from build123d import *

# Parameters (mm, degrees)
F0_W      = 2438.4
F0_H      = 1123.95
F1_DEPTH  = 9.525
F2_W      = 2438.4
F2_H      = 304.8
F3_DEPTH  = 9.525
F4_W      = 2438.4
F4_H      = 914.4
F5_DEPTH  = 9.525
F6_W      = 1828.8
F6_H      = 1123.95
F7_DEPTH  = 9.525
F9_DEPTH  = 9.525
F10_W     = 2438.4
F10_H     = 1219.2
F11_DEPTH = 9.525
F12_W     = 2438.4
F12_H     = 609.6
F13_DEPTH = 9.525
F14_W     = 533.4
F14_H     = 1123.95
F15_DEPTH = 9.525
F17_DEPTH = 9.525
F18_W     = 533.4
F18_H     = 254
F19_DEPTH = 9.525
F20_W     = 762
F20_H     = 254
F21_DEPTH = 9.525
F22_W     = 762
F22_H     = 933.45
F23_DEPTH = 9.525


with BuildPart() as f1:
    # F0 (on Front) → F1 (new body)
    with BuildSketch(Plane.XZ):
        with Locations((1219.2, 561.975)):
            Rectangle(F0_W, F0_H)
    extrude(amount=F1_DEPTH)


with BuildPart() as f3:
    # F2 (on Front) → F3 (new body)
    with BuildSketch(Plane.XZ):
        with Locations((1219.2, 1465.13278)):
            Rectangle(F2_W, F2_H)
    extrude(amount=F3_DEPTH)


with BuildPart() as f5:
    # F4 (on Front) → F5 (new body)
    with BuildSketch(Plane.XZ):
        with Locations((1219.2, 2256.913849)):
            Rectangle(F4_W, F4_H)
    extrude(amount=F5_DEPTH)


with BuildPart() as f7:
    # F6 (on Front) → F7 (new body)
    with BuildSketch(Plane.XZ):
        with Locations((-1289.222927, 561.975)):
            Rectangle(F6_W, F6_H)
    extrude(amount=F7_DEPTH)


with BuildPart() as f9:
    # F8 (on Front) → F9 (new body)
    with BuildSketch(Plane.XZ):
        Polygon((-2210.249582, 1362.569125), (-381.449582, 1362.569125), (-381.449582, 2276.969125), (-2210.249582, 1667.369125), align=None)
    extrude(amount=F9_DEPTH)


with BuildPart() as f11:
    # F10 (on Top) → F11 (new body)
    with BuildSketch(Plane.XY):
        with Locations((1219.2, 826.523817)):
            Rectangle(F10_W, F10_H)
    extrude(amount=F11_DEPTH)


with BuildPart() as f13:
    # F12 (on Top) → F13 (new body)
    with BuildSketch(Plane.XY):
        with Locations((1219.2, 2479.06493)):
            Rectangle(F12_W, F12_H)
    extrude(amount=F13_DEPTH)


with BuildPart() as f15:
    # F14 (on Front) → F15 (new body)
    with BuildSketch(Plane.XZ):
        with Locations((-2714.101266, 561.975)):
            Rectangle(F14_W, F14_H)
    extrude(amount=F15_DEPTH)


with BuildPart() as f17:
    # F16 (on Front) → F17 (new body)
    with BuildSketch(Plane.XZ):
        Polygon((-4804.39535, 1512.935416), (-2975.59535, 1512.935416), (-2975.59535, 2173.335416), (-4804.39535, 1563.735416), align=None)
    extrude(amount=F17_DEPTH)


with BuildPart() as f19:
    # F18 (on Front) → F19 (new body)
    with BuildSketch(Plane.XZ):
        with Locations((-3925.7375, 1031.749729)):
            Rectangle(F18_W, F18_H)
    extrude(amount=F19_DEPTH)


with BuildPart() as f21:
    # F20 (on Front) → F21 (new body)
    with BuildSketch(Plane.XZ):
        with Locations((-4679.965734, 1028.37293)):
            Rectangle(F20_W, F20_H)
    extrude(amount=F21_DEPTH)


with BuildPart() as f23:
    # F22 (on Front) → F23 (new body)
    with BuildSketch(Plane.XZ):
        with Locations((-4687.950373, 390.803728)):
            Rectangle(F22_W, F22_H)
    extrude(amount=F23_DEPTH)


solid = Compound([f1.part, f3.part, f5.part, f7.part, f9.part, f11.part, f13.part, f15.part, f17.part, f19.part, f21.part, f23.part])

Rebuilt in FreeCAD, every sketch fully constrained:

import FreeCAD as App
import Part
import Sketcher
Q = App.Units.Quantity

doc = App.newDocument("Part")
body = doc.addObject("PartDesign::Body", "Body")

sketch1 = doc.addObject("Sketcher::SketchObject", "Sketch")
body.addObject(sketch1)
sketch1.AttachmentSupport = (doc.XZ_Plane, [""])
sketch1.MapMode = "FlatFace"
sketch1.addGeometry(Part.LineSegment(App.Vector(0, 1124, 0), App.Vector(0, 0, 0)), False)
sketch1.addGeometry(Part.LineSegment(App.Vector(0, 0, 0), App.Vector(2438, 0, 0)), False)
sketch1.addGeometry(Part.LineSegment(App.Vector(2438, 0, 0), App.Vector(2438, 1124, 0)), False)
sketch1.addGeometry(Part.LineSegment(App.Vector(2438, 1124, 0), App.Vector(0, 1124, 0)), False)
sketch1.addConstraint(Sketcher.Constraint("Coincident", 0, 2, 1, 1))
sketch1.addConstraint(Sketcher.Constraint("Coincident", 1, 2, 2, 1))
sketch1.addConstraint(Sketcher.Constraint("Coincident", 2, 2, 3, 1))
sketch1.addConstraint(Sketcher.Constraint("Coincident", 3, 2, 0, 1))
sketch1.addConstraint(Sketcher.Constraint("Vertical", 0))
sketch1.addConstraint(Sketcher.Constraint("Horizontal", 1))
sketch1.addConstraint(Sketcher.Constraint("Vertical", 2))
sketch1.addConstraint(Sketcher.Constraint("Horizontal", 3))
sketch1.addConstraint(Sketcher.Constraint("Coincident", 0, 2, -1, 1))
sketch1.addConstraint(Sketcher.Constraint("DistanceX", 1, 1, 1, 2, Q("96 in")))
sketch1.addConstraint(Sketcher.Constraint("DistanceY", 0, 2, 0, 1, Q("44.25 in")))
pad1 = doc.addObject("PartDesign::Pad", "Pad")
body.addObject(pad1)
pad1.Profile = sketch1
pad1.Length = Q("0.375 in")
body2 = doc.addObject("PartDesign::Body", "Body001")

sketch2 = doc.addObject("Sketcher::SketchObject", "Sketch001")
body2.addObject(sketch2)
sketch2.AttachmentSupport = (doc.getObject("XZ_Plane001"), [""])
sketch2.MapMode = "FlatFace"
sketch2.addGeometry(Part.LineSegment(App.Vector(0, 1618, 0), App.Vector(0, 1313, 0)), False)
sketch2.addGeometry(Part.LineSegment(App.Vector(0, 1313, 0), App.Vector(2438, 1313, 0)), False)
sketch2.addGeometry(Part.LineSegment(App.Vector(2438, 1313, 0), App.Vector(2438, 1618, 0)), False)
sketch2.addGeometry(Part.LineSegment(App.Vector(2438, 1618, 0), App.Vector(0, 1618, 0)), False)
sketch2.addConstraint(Sketcher.Constraint("Coincident", 0, 2, 1, 1))
sketch2.addConstraint(Sketcher.Constraint("Coincident", 1, 2, 2, 1))
sketch2.addConstraint(Sketcher.Constraint("Coincident", 2, 2, 3, 1))
sketch2.addConstraint(Sketcher.Constraint("Coincident", 3, 2, 0, 1))
sketch2.addConstraint(Sketcher.Constraint("Vertical", 0))
sketch2.addConstraint(Sketcher.Constraint("Horizontal", 1))
sketch2.addConstraint(Sketcher.Constraint("Vertical", 2))
sketch2.addConstraint(Sketcher.Constraint("Horizontal", 3))
sketch2.addConstraint(Sketcher.Constraint("PointOnObject", 0, 2, -2))
sketch2.addConstraint(Sketcher.Constraint("DistanceX", 1, 1, 1, 2, Q("96 in")))
sketch2.addConstraint(Sketcher.Constraint("DistanceY", 0, 2, 0, 1, Q("12 in")))
sketch2.addConstraint(Sketcher.Constraint("DistanceY", -1, 1, 0, 2, Q("1312.73278 mm")))
pad2 = doc.addObject("PartDesign::Pad", "Pad001")
body2.addObject(pad2)
pad2.Profile = sketch2
pad2.Length = Q("0.375 in")
body3 = doc.addObject("PartDesign::Body", "Body002")

sketch3 = doc.addObject("Sketcher::SketchObject", "Sketch002")
body3.addObject(sketch3)
sketch3.AttachmentSupport = (doc.getObject("XZ_Plane002"), [""])
sketch3.MapMode = "FlatFace"
sketch3.addGeometry(Part.LineSegment(App.Vector(0, 2714, 0), App.Vector(0, 1800, 0)), False)
sketch3.addGeometry(Part.LineSegment(App.Vector(0, 1800, 0), App.Vector(2438, 1800, 0)), False)
sketch3.addGeometry(Part.LineSegment(App.Vector(2438, 1800, 0), App.Vector(2438, 2714, 0)), False)
sketch3.addGeometry(Part.LineSegment(App.Vector(2438, 2714, 0), App.Vector(0, 2714, 0)), False)
sketch3.addConstraint(Sketcher.Constraint("Coincident", 0, 2, 1, 1))
sketch3.addConstraint(Sketcher.Constraint("Coincident", 1, 2, 2, 1))
sketch3.addConstraint(Sketcher.Constraint("Coincident", 2, 2, 3, 1))
sketch3.addConstraint(Sketcher.Constraint("Coincident", 3, 2, 0, 1))
sketch3.addConstraint(Sketcher.Constraint("Vertical", 0))
sketch3.addConstraint(Sketcher.Constraint("Horizontal", 1))
sketch3.addConstraint(Sketcher.Constraint("Vertical", 2))
sketch3.addConstraint(Sketcher.Constraint("Horizontal", 3))
sketch3.addConstraint(Sketcher.Constraint("PointOnObject", 0, 2, -2))
sketch3.addConstraint(Sketcher.Constraint("DistanceX", 1, 1, 1, 2, Q("96 in")))
sketch3.addConstraint(Sketcher.Constraint("DistanceY", 0, 2, 0, 1, Q("36 in")))
sketch3.addConstraint(Sketcher.Constraint("DistanceY", -1, 1, 0, 2, Q("1799.713849 mm")))
pad3 = doc.addObject("PartDesign::Pad", "Pad002")
body3.addObject(pad3)
pad3.Profile = sketch3
pad3.Length = Q("0.375 in")
body4 = doc.addObject("PartDesign::Body", "Body003")

sketch4 = doc.addObject("Sketcher::SketchObject", "Sketch003")
body4.addObject(sketch4)
sketch4.AttachmentSupport = (doc.getObject("XZ_Plane003"), [""])
sketch4.MapMode = "FlatFace"
sketch4.addGeometry(Part.LineSegment(App.Vector(-2204, 1124, 0), App.Vector(-2204, 0, 0)), False)
sketch4.addGeometry(Part.LineSegment(App.Vector(-2204, 0, 0), App.Vector(-375, 0, 0)), False)
sketch4.addGeometry(Part.LineSegment(App.Vector(-375, 0, 0), App.Vector(-375, 1124, 0)), False)
sketch4.addGeometry(Part.LineSegment(App.Vector(-375, 1124, 0), App.Vector(-2204, 1124, 0)), False)
sketch4.addConstraint(Sketcher.Constraint("Coincident", 0, 2, 1, 1))
sketch4.addConstraint(Sketcher.Constraint("Coincident", 1, 2, 2, 1))
sketch4.addConstraint(Sketcher.Constraint("Coincident", 2, 2, 3, 1))
sketch4.addConstraint(Sketcher.Constraint("Coincident", 3, 2, 0, 1))
sketch4.addConstraint(Sketcher.Constraint("Vertical", 0))
sketch4.addConstraint(Sketcher.Constraint("Horizontal", 1))
sketch4.addConstraint(Sketcher.Constraint("Vertical", 2))
sketch4.addConstraint(Sketcher.Constraint("Horizontal", 3))
sketch4.addConstraint(Sketcher.Constraint("PointOnObject", 0, 2, -1))
sketch4.addConstraint(Sketcher.Constraint("DistanceX", 1, 1, 1, 2, Q("72 in")))
sketch4.addConstraint(Sketcher.Constraint("DistanceY", 0, 2, 0, 1, Q("44.25 in")))
sketch4.addConstraint(Sketcher.Constraint("DistanceX", 0, 2, -1, 1, Q("2203.622927 mm")))
pad4 = doc.addObject("PartDesign::Pad", "Pad003")
body4.addObject(pad4)
pad4.Profile = sketch4
pad4.Length = Q("0.375 in")
body5 = doc.addObject("PartDesign::Body", "Body004")

sketch5 = doc.addObject("Sketcher::SketchObject", "Sketch004")
body5.addObject(sketch5)
sketch5.AttachmentSupport = (doc.getObject("XZ_Plane004"), [""])
sketch5.MapMode = "FlatFace"
sketch5.addGeometry(Part.LineSegment(App.Vector(-2210, 1363, 0), App.Vector(-381, 1363, 0)), False)
sketch5.addGeometry(Part.LineSegment(App.Vector(-381, 1363, 0), App.Vector(-381, 2277, 0)), False)
sketch5.addGeometry(Part.LineSegment(App.Vector(-381, 2277, 0), App.Vector(-2210, 1667, 0)), False)
sketch5.addGeometry(Part.LineSegment(App.Vector(-2210, 1667, 0), App.Vector(-2210, 1363, 0)), False)
sketch5.addConstraint(Sketcher.Constraint("Coincident", 0, 2, 1, 1))
sketch5.addConstraint(Sketcher.Constraint("Coincident", 1, 2, 2, 1))
sketch5.addConstraint(Sketcher.Constraint("Coincident", 2, 2, 3, 1))
sketch5.addConstraint(Sketcher.Constraint("Coincident", 3, 2, 0, 1))
sketch5.addConstraint(Sketcher.Constraint("Horizontal", 0))
sketch5.addConstraint(Sketcher.Constraint("Vertical", 1))
sketch5.addConstraint(Sketcher.Constraint("Vertical", 3))
sketch5.addConstraint(Sketcher.Constraint("DistanceX", 0, 1, 0, 2, Q("72 in")))
sketch5.addConstraint(Sketcher.Constraint("DistanceY", 1, 1, 1, 2, Q("36 in")))
sketch5.addConstraint(Sketcher.Constraint("DistanceY", 3, 2, 3, 1, Q("12 in")))
sketch5.addConstraint(Sketcher.Constraint("DistanceX", 0, 2, -1, 1, Q("15.0177001 in")))
sketch5.addConstraint(Sketcher.Constraint("DistanceY", -1, 1, 0, 2, Q("1362.569125 mm")))
pad5 = doc.addObject("PartDesign::Pad", "Pad004")
body5.addObject(pad5)
pad5.Profile = sketch5
pad5.Length = Q("0.375 in")
body6 = doc.addObject("PartDesign::Body", "Body005")

sketch6 = doc.addObject("Sketcher::SketchObject", "Sketch005")
body6.addObject(sketch6)
sketch6.AttachmentSupport = (doc.getObject("XY_Plane005"), [""])
sketch6.MapMode = "FlatFace"
sketch6.addGeometry(Part.LineSegment(App.Vector(0, 1436, 0), App.Vector(0, 217, 0)), False)
sketch6.addGeometry(Part.LineSegment(App.Vector(0, 217, 0), App.Vector(2438, 217, 0)), False)
sketch6.addGeometry(Part.LineSegment(App.Vector(2438, 217, 0), App.Vector(2438, 1436, 0)), False)
sketch6.addGeometry(Part.LineSegment(App.Vector(2438, 1436, 0), App.Vector(0, 1436, 0)), False)
sketch6.addConstraint(Sketcher.Constraint("Coincident", 0, 2, 1, 1))
sketch6.addConstraint(Sketcher.Constraint("Coincident", 1, 2, 2, 1))
sketch6.addConstraint(Sketcher.Constraint("Coincident", 2, 2, 3, 1))
sketch6.addConstraint(Sketcher.Constraint("Coincident", 3, 2, 0, 1))
sketch6.addConstraint(Sketcher.Constraint("Vertical", 0))
sketch6.addConstraint(Sketcher.Constraint("Horizontal", 1))
sketch6.addConstraint(Sketcher.Constraint("Vertical", 2))
sketch6.addConstraint(Sketcher.Constraint("Horizontal", 3))
sketch6.addConstraint(Sketcher.Constraint("PointOnObject", 0, 2, -2))
sketch6.addConstraint(Sketcher.Constraint("DistanceX", 1, 1, 1, 2, Q("96 in")))
sketch6.addConstraint(Sketcher.Constraint("DistanceY", 0, 2, 0, 1, Q("48 in")))
sketch6.addConstraint(Sketcher.Constraint("DistanceY", -1, 1, 0, 2, Q("216.923817 mm")))
pad6 = doc.addObject("PartDesign::Pad", "Pad005")
body6.addObject(pad6)
pad6.Profile = sketch6
pad6.Length = Q("0.375 in")
body7 = doc.addObject("PartDesign::Body", "Body006")

sketch7 = doc.addObject("Sketcher::SketchObject", "Sketch006")
body7.addObject(sketch7)
sketch7.AttachmentSupport = (doc.getObject("XY_Plane006"), [""])
sketch7.MapMode = "FlatFace"
sketch7.addGeometry(Part.LineSegment(App.Vector(0, 2784, 0), App.Vector(0, 2174, 0)), False)
sketch7.addGeometry(Part.LineSegment(App.Vector(0, 2174, 0), App.Vector(2438, 2174, 0)), False)
sketch7.addGeometry(Part.LineSegment(App.Vector(2438, 2174, 0), App.Vector(2438, 2784, 0)), False)
sketch7.addGeometry(Part.LineSegment(App.Vector(2438, 2784, 0), App.Vector(0, 2784, 0)), False)
sketch7.addConstraint(Sketcher.Constraint("Coincident", 0, 2, 1, 1))
sketch7.addConstraint(Sketcher.Constraint("Coincident", 1, 2, 2, 1))
sketch7.addConstraint(Sketcher.Constraint("Coincident", 2, 2, 3, 1))
sketch7.addConstraint(Sketcher.Constraint("Coincident", 3, 2, 0, 1))
sketch7.addConstraint(Sketcher.Constraint("Vertical", 0))
sketch7.addConstraint(Sketcher.Constraint("Horizontal", 1))
sketch7.addConstraint(Sketcher.Constraint("Vertical", 2))
sketch7.addConstraint(Sketcher.Constraint("Horizontal", 3))
sketch7.addConstraint(Sketcher.Constraint("PointOnObject", 0, 2, -2))
sketch7.addConstraint(Sketcher.Constraint("DistanceX", 1, 1, 1, 2, Q("96 in")))
sketch7.addConstraint(Sketcher.Constraint("DistanceY", 0, 2, 0, 1, Q("24 in")))
sketch7.addConstraint(Sketcher.Constraint("DistanceY", -1, 1, 0, 2, Q("2174.26493 mm")))
pad7 = doc.addObject("PartDesign::Pad", "Pad006")
body7.addObject(pad7)
pad7.Profile = sketch7
pad7.Length = Q("0.375 in")
body8 = doc.addObject("PartDesign::Body", "Body007")

sketch8 = doc.addObject("Sketcher::SketchObject", "Sketch007")
body8.addObject(sketch8)
sketch8.AttachmentSupport = (doc.getObject("XZ_Plane007"), [""])
sketch8.MapMode = "FlatFace"
sketch8.addGeometry(Part.LineSegment(App.Vector(-2981, 1124, 0), App.Vector(-2981, 0, 0)), False)
sketch8.addGeometry(Part.LineSegment(App.Vector(-2981, 0, 0), App.Vector(-2447, 0, 0)), False)
sketch8.addGeometry(Part.LineSegment(App.Vector(-2447, 0, 0), App.Vector(-2447, 1124, 0)), False)
sketch8.addGeometry(Part.LineSegment(App.Vector(-2447, 1124, 0), App.Vector(-2981, 1124, 0)), False)
sketch8.addConstraint(Sketcher.Constraint("Coincident", 0, 2, 1, 1))
sketch8.addConstraint(Sketcher.Constraint("Coincident", 1, 2, 2, 1))
sketch8.addConstraint(Sketcher.Constraint("Coincident", 2, 2, 3, 1))
sketch8.addConstraint(Sketcher.Constraint("Coincident", 3, 2, 0, 1))
sketch8.addConstraint(Sketcher.Constraint("Vertical", 0))
sketch8.addConstraint(Sketcher.Constraint("Horizontal", 1))
sketch8.addConstraint(Sketcher.Constraint("Vertical", 2))
sketch8.addConstraint(Sketcher.Constraint("Horizontal", 3))
sketch8.addConstraint(Sketcher.Constraint("PointOnObject", 0, 2, -1))
sketch8.addConstraint(Sketcher.Constraint("DistanceX", 1, 1, 1, 2, Q("21 in")))
sketch8.addConstraint(Sketcher.Constraint("DistanceY", 0, 2, 0, 1, Q("44.25 in")))
sketch8.addConstraint(Sketcher.Constraint("DistanceX", 0, 2, -1, 1, Q("2980.801266 mm")))
pad8 = doc.addObject("PartDesign::Pad", "Pad007")
body8.addObject(pad8)
pad8.Profile = sketch8
pad8.Length = Q("0.375 in")
body9 = doc.addObject("PartDesign::Body", "Body008")

sketch9 = doc.addObject("Sketcher::SketchObject", "Sketch008")
body9.addObject(sketch9)
sketch9.AttachmentSupport = (doc.getObject("XZ_Plane008"), [""])
sketch9.MapMode = "FlatFace"
sketch9.addGeometry(Part.LineSegment(App.Vector(-4804, 1513, 0), App.Vector(-2976, 1513, 0)), False)
sketch9.addGeometry(Part.LineSegment(App.Vector(-2976, 1513, 0), App.Vector(-2976, 2173, 0)), False)
sketch9.addGeometry(Part.LineSegment(App.Vector(-2976, 2173, 0), App.Vector(-4804, 1564, 0)), False)
sketch9.addGeometry(Part.LineSegment(App.Vector(-4804, 1564, 0), App.Vector(-4804, 1513, 0)), False)
sketch9.addConstraint(Sketcher.Constraint("Coincident", 0, 2, 1, 1))
sketch9.addConstraint(Sketcher.Constraint("Coincident", 1, 2, 2, 1))
sketch9.addConstraint(Sketcher.Constraint("Coincident", 2, 2, 3, 1))
sketch9.addConstraint(Sketcher.Constraint("Coincident", 3, 2, 0, 1))
sketch9.addConstraint(Sketcher.Constraint("Horizontal", 0))
sketch9.addConstraint(Sketcher.Constraint("Vertical", 1))
sketch9.addConstraint(Sketcher.Constraint("Vertical", 3))
sketch9.addConstraint(Sketcher.Constraint("DistanceX", 0, 1, 0, 2, Q("72 in")))
sketch9.addConstraint(Sketcher.Constraint("DistanceY", 1, 1, 1, 2, Q("26 in")))
sketch9.addConstraint(Sketcher.Constraint("DistanceY", 3, 2, 3, 1, Q("2 in")))
sketch9.addConstraint(Sketcher.Constraint("DistanceX", 0, 2, -1, 1, Q("2975.59535 mm")))
sketch9.addConstraint(Sketcher.Constraint("DistanceY", -1, 1, 0, 2, Q("1512.935416 mm")))
pad9 = doc.addObject("PartDesign::Pad", "Pad008")
body9.addObject(pad9)
pad9.Profile = sketch9
pad9.Length = Q("0.375 in")
body10 = doc.addObject("PartDesign::Body", "Body009")

sketch10 = doc.addObject("Sketcher::SketchObject", "Sketch009")
body10.addObject(sketch10)
sketch10.AttachmentSupport = (doc.getObject("XZ_Plane009"), [""])
sketch10.MapMode = "FlatFace"
sketch10.addGeometry(Part.LineSegment(App.Vector(-4192, 1159, 0), App.Vector(-4192, 905, 0)), False)
sketch10.addGeometry(Part.LineSegment(App.Vector(-4192, 905, 0), App.Vector(-3659, 905, 0)), False)
sketch10.addGeometry(Part.LineSegment(App.Vector(-3659, 905, 0), App.Vector(-3659, 1159, 0)), False)
sketch10.addGeometry(Part.LineSegment(App.Vector(-3659, 1159, 0), App.Vector(-4192, 1159, 0)), False)
sketch10.addConstraint(Sketcher.Constraint("Coincident", 0, 2, 1, 1))
sketch10.addConstraint(Sketcher.Constraint("Coincident", 1, 2, 2, 1))
sketch10.addConstraint(Sketcher.Constraint("Coincident", 2, 2, 3, 1))
sketch10.addConstraint(Sketcher.Constraint("Coincident", 3, 2, 0, 1))
sketch10.addConstraint(Sketcher.Constraint("Vertical", 0))
sketch10.addConstraint(Sketcher.Constraint("Horizontal", 1))
sketch10.addConstraint(Sketcher.Constraint("Vertical", 2))
sketch10.addConstraint(Sketcher.Constraint("Horizontal", 3))
sketch10.addConstraint(Sketcher.Constraint("DistanceX", 1, 1, 1, 2, Q("21 in")))
sketch10.addConstraint(Sketcher.Constraint("DistanceY", 0, 2, 0, 1, Q("10 in")))
sketch10.addConstraint(Sketcher.Constraint("DistanceX", 0, 2, -1, 1, Q("4192.4375 mm")))
sketch10.addConstraint(Sketcher.Constraint("DistanceY", -1, 1, 0, 2, Q("904.749729 mm")))
pad10 = doc.addObject("PartDesign::Pad", "Pad009")
body10.addObject(pad10)
pad10.Profile = sketch10
pad10.Length = Q("0.375 in")
body11 = doc.addObject("PartDesign::Body", "Body010")

sketch11 = doc.addObject("Sketcher::SketchObject", "Sketch010")
body11.addObject(sketch11)
sketch11.AttachmentSupport = (doc.getObject("XZ_Plane010"), [""])
sketch11.MapMode = "FlatFace"
sketch11.addGeometry(Part.LineSegment(App.Vector(-5061, 1155, 0), App.Vector(-5061, 901, 0)), False)
sketch11.addGeometry(Part.LineSegment(App.Vector(-5061, 901, 0), App.Vector(-4299, 901, 0)), False)
sketch11.addGeometry(Part.LineSegment(App.Vector(-4299, 901, 0), App.Vector(-4299, 1155, 0)), False)
sketch11.addGeometry(Part.LineSegment(App.Vector(-4299, 1155, 0), App.Vector(-5061, 1155, 0)), False)
sketch11.addConstraint(Sketcher.Constraint("Coincident", 0, 2, 1, 1))
sketch11.addConstraint(Sketcher.Constraint("Coincident", 1, 2, 2, 1))
sketch11.addConstraint(Sketcher.Constraint("Coincident", 2, 2, 3, 1))
sketch11.addConstraint(Sketcher.Constraint("Coincident", 3, 2, 0, 1))
sketch11.addConstraint(Sketcher.Constraint("Vertical", 0))
sketch11.addConstraint(Sketcher.Constraint("Horizontal", 1))
sketch11.addConstraint(Sketcher.Constraint("Vertical", 2))
sketch11.addConstraint(Sketcher.Constraint("Horizontal", 3))
sketch11.addConstraint(Sketcher.Constraint("DistanceX", 1, 1, 1, 2, Q("30 in")))
sketch11.addConstraint(Sketcher.Constraint("DistanceY", 0, 2, 0, 1, Q("10 in")))
sketch11.addConstraint(Sketcher.Constraint("DistanceY", -1, 1, 0, 2, Q("901.37293 mm")))
sketch11.addConstraint(Sketcher.Constraint("DistanceX", 0, 2, -1, 1, Q("5060.965734 mm")))
pad11 = doc.addObject("PartDesign::Pad", "Pad010")
body11.addObject(pad11)
pad11.Profile = sketch11
pad11.Length = Q("0.375 in")
body12 = doc.addObject("PartDesign::Body", "Body011")

sketch12 = doc.addObject("Sketcher::SketchObject", "Sketch011")
body12.addObject(sketch12)
sketch12.AttachmentSupport = (doc.getObject("XZ_Plane011"), [""])
sketch12.MapMode = "FlatFace"
sketch12.addGeometry(Part.LineSegment(App.Vector(-5069, 858, 0), App.Vector(-5069, -76, 0)), False)
sketch12.addGeometry(Part.LineSegment(App.Vector(-5069, -76, 0), App.Vector(-4307, -76, 0)), False)
sketch12.addGeometry(Part.LineSegment(App.Vector(-4307, -76, 0), App.Vector(-4307, 858, 0)), False)
sketch12.addGeometry(Part.LineSegment(App.Vector(-4307, 858, 0), App.Vector(-5069, 858, 0)), False)
sketch12.addConstraint(Sketcher.Constraint("Coincident", 0, 2, 1, 1))
sketch12.addConstraint(Sketcher.Constraint("Coincident", 1, 2, 2, 1))
sketch12.addConstraint(Sketcher.Constraint("Coincident", 2, 2, 3, 1))
sketch12.addConstraint(Sketcher.Constraint("Coincident", 3, 2, 0, 1))
sketch12.addConstraint(Sketcher.Constraint("Vertical", 0))
sketch12.addConstraint(Sketcher.Constraint("Horizontal", 1))
sketch12.addConstraint(Sketcher.Constraint("Vertical", 2))
sketch12.addConstraint(Sketcher.Constraint("Horizontal", 3))
sketch12.addConstraint(Sketcher.Constraint("DistanceX", 1, 1, 1, 2, Q("30 in")))
sketch12.addConstraint(Sketcher.Constraint("DistanceY", 0, 2, 0, 1, Q("36.75 in")))
sketch12.addConstraint(Sketcher.Constraint("DistanceY", 0, 2, -1, 1, Q("75.921272 mm")))
sketch12.addConstraint(Sketcher.Constraint("DistanceX", 0, 2, -1, 1, Q("5068.950373 mm")))
pad12 = doc.addObject("PartDesign::Pad", "Pad011")
body12.addObject(pad12)
pad12.Profile = sketch12
pad12.Length = Q("0.375 in")

doc.recompute()
